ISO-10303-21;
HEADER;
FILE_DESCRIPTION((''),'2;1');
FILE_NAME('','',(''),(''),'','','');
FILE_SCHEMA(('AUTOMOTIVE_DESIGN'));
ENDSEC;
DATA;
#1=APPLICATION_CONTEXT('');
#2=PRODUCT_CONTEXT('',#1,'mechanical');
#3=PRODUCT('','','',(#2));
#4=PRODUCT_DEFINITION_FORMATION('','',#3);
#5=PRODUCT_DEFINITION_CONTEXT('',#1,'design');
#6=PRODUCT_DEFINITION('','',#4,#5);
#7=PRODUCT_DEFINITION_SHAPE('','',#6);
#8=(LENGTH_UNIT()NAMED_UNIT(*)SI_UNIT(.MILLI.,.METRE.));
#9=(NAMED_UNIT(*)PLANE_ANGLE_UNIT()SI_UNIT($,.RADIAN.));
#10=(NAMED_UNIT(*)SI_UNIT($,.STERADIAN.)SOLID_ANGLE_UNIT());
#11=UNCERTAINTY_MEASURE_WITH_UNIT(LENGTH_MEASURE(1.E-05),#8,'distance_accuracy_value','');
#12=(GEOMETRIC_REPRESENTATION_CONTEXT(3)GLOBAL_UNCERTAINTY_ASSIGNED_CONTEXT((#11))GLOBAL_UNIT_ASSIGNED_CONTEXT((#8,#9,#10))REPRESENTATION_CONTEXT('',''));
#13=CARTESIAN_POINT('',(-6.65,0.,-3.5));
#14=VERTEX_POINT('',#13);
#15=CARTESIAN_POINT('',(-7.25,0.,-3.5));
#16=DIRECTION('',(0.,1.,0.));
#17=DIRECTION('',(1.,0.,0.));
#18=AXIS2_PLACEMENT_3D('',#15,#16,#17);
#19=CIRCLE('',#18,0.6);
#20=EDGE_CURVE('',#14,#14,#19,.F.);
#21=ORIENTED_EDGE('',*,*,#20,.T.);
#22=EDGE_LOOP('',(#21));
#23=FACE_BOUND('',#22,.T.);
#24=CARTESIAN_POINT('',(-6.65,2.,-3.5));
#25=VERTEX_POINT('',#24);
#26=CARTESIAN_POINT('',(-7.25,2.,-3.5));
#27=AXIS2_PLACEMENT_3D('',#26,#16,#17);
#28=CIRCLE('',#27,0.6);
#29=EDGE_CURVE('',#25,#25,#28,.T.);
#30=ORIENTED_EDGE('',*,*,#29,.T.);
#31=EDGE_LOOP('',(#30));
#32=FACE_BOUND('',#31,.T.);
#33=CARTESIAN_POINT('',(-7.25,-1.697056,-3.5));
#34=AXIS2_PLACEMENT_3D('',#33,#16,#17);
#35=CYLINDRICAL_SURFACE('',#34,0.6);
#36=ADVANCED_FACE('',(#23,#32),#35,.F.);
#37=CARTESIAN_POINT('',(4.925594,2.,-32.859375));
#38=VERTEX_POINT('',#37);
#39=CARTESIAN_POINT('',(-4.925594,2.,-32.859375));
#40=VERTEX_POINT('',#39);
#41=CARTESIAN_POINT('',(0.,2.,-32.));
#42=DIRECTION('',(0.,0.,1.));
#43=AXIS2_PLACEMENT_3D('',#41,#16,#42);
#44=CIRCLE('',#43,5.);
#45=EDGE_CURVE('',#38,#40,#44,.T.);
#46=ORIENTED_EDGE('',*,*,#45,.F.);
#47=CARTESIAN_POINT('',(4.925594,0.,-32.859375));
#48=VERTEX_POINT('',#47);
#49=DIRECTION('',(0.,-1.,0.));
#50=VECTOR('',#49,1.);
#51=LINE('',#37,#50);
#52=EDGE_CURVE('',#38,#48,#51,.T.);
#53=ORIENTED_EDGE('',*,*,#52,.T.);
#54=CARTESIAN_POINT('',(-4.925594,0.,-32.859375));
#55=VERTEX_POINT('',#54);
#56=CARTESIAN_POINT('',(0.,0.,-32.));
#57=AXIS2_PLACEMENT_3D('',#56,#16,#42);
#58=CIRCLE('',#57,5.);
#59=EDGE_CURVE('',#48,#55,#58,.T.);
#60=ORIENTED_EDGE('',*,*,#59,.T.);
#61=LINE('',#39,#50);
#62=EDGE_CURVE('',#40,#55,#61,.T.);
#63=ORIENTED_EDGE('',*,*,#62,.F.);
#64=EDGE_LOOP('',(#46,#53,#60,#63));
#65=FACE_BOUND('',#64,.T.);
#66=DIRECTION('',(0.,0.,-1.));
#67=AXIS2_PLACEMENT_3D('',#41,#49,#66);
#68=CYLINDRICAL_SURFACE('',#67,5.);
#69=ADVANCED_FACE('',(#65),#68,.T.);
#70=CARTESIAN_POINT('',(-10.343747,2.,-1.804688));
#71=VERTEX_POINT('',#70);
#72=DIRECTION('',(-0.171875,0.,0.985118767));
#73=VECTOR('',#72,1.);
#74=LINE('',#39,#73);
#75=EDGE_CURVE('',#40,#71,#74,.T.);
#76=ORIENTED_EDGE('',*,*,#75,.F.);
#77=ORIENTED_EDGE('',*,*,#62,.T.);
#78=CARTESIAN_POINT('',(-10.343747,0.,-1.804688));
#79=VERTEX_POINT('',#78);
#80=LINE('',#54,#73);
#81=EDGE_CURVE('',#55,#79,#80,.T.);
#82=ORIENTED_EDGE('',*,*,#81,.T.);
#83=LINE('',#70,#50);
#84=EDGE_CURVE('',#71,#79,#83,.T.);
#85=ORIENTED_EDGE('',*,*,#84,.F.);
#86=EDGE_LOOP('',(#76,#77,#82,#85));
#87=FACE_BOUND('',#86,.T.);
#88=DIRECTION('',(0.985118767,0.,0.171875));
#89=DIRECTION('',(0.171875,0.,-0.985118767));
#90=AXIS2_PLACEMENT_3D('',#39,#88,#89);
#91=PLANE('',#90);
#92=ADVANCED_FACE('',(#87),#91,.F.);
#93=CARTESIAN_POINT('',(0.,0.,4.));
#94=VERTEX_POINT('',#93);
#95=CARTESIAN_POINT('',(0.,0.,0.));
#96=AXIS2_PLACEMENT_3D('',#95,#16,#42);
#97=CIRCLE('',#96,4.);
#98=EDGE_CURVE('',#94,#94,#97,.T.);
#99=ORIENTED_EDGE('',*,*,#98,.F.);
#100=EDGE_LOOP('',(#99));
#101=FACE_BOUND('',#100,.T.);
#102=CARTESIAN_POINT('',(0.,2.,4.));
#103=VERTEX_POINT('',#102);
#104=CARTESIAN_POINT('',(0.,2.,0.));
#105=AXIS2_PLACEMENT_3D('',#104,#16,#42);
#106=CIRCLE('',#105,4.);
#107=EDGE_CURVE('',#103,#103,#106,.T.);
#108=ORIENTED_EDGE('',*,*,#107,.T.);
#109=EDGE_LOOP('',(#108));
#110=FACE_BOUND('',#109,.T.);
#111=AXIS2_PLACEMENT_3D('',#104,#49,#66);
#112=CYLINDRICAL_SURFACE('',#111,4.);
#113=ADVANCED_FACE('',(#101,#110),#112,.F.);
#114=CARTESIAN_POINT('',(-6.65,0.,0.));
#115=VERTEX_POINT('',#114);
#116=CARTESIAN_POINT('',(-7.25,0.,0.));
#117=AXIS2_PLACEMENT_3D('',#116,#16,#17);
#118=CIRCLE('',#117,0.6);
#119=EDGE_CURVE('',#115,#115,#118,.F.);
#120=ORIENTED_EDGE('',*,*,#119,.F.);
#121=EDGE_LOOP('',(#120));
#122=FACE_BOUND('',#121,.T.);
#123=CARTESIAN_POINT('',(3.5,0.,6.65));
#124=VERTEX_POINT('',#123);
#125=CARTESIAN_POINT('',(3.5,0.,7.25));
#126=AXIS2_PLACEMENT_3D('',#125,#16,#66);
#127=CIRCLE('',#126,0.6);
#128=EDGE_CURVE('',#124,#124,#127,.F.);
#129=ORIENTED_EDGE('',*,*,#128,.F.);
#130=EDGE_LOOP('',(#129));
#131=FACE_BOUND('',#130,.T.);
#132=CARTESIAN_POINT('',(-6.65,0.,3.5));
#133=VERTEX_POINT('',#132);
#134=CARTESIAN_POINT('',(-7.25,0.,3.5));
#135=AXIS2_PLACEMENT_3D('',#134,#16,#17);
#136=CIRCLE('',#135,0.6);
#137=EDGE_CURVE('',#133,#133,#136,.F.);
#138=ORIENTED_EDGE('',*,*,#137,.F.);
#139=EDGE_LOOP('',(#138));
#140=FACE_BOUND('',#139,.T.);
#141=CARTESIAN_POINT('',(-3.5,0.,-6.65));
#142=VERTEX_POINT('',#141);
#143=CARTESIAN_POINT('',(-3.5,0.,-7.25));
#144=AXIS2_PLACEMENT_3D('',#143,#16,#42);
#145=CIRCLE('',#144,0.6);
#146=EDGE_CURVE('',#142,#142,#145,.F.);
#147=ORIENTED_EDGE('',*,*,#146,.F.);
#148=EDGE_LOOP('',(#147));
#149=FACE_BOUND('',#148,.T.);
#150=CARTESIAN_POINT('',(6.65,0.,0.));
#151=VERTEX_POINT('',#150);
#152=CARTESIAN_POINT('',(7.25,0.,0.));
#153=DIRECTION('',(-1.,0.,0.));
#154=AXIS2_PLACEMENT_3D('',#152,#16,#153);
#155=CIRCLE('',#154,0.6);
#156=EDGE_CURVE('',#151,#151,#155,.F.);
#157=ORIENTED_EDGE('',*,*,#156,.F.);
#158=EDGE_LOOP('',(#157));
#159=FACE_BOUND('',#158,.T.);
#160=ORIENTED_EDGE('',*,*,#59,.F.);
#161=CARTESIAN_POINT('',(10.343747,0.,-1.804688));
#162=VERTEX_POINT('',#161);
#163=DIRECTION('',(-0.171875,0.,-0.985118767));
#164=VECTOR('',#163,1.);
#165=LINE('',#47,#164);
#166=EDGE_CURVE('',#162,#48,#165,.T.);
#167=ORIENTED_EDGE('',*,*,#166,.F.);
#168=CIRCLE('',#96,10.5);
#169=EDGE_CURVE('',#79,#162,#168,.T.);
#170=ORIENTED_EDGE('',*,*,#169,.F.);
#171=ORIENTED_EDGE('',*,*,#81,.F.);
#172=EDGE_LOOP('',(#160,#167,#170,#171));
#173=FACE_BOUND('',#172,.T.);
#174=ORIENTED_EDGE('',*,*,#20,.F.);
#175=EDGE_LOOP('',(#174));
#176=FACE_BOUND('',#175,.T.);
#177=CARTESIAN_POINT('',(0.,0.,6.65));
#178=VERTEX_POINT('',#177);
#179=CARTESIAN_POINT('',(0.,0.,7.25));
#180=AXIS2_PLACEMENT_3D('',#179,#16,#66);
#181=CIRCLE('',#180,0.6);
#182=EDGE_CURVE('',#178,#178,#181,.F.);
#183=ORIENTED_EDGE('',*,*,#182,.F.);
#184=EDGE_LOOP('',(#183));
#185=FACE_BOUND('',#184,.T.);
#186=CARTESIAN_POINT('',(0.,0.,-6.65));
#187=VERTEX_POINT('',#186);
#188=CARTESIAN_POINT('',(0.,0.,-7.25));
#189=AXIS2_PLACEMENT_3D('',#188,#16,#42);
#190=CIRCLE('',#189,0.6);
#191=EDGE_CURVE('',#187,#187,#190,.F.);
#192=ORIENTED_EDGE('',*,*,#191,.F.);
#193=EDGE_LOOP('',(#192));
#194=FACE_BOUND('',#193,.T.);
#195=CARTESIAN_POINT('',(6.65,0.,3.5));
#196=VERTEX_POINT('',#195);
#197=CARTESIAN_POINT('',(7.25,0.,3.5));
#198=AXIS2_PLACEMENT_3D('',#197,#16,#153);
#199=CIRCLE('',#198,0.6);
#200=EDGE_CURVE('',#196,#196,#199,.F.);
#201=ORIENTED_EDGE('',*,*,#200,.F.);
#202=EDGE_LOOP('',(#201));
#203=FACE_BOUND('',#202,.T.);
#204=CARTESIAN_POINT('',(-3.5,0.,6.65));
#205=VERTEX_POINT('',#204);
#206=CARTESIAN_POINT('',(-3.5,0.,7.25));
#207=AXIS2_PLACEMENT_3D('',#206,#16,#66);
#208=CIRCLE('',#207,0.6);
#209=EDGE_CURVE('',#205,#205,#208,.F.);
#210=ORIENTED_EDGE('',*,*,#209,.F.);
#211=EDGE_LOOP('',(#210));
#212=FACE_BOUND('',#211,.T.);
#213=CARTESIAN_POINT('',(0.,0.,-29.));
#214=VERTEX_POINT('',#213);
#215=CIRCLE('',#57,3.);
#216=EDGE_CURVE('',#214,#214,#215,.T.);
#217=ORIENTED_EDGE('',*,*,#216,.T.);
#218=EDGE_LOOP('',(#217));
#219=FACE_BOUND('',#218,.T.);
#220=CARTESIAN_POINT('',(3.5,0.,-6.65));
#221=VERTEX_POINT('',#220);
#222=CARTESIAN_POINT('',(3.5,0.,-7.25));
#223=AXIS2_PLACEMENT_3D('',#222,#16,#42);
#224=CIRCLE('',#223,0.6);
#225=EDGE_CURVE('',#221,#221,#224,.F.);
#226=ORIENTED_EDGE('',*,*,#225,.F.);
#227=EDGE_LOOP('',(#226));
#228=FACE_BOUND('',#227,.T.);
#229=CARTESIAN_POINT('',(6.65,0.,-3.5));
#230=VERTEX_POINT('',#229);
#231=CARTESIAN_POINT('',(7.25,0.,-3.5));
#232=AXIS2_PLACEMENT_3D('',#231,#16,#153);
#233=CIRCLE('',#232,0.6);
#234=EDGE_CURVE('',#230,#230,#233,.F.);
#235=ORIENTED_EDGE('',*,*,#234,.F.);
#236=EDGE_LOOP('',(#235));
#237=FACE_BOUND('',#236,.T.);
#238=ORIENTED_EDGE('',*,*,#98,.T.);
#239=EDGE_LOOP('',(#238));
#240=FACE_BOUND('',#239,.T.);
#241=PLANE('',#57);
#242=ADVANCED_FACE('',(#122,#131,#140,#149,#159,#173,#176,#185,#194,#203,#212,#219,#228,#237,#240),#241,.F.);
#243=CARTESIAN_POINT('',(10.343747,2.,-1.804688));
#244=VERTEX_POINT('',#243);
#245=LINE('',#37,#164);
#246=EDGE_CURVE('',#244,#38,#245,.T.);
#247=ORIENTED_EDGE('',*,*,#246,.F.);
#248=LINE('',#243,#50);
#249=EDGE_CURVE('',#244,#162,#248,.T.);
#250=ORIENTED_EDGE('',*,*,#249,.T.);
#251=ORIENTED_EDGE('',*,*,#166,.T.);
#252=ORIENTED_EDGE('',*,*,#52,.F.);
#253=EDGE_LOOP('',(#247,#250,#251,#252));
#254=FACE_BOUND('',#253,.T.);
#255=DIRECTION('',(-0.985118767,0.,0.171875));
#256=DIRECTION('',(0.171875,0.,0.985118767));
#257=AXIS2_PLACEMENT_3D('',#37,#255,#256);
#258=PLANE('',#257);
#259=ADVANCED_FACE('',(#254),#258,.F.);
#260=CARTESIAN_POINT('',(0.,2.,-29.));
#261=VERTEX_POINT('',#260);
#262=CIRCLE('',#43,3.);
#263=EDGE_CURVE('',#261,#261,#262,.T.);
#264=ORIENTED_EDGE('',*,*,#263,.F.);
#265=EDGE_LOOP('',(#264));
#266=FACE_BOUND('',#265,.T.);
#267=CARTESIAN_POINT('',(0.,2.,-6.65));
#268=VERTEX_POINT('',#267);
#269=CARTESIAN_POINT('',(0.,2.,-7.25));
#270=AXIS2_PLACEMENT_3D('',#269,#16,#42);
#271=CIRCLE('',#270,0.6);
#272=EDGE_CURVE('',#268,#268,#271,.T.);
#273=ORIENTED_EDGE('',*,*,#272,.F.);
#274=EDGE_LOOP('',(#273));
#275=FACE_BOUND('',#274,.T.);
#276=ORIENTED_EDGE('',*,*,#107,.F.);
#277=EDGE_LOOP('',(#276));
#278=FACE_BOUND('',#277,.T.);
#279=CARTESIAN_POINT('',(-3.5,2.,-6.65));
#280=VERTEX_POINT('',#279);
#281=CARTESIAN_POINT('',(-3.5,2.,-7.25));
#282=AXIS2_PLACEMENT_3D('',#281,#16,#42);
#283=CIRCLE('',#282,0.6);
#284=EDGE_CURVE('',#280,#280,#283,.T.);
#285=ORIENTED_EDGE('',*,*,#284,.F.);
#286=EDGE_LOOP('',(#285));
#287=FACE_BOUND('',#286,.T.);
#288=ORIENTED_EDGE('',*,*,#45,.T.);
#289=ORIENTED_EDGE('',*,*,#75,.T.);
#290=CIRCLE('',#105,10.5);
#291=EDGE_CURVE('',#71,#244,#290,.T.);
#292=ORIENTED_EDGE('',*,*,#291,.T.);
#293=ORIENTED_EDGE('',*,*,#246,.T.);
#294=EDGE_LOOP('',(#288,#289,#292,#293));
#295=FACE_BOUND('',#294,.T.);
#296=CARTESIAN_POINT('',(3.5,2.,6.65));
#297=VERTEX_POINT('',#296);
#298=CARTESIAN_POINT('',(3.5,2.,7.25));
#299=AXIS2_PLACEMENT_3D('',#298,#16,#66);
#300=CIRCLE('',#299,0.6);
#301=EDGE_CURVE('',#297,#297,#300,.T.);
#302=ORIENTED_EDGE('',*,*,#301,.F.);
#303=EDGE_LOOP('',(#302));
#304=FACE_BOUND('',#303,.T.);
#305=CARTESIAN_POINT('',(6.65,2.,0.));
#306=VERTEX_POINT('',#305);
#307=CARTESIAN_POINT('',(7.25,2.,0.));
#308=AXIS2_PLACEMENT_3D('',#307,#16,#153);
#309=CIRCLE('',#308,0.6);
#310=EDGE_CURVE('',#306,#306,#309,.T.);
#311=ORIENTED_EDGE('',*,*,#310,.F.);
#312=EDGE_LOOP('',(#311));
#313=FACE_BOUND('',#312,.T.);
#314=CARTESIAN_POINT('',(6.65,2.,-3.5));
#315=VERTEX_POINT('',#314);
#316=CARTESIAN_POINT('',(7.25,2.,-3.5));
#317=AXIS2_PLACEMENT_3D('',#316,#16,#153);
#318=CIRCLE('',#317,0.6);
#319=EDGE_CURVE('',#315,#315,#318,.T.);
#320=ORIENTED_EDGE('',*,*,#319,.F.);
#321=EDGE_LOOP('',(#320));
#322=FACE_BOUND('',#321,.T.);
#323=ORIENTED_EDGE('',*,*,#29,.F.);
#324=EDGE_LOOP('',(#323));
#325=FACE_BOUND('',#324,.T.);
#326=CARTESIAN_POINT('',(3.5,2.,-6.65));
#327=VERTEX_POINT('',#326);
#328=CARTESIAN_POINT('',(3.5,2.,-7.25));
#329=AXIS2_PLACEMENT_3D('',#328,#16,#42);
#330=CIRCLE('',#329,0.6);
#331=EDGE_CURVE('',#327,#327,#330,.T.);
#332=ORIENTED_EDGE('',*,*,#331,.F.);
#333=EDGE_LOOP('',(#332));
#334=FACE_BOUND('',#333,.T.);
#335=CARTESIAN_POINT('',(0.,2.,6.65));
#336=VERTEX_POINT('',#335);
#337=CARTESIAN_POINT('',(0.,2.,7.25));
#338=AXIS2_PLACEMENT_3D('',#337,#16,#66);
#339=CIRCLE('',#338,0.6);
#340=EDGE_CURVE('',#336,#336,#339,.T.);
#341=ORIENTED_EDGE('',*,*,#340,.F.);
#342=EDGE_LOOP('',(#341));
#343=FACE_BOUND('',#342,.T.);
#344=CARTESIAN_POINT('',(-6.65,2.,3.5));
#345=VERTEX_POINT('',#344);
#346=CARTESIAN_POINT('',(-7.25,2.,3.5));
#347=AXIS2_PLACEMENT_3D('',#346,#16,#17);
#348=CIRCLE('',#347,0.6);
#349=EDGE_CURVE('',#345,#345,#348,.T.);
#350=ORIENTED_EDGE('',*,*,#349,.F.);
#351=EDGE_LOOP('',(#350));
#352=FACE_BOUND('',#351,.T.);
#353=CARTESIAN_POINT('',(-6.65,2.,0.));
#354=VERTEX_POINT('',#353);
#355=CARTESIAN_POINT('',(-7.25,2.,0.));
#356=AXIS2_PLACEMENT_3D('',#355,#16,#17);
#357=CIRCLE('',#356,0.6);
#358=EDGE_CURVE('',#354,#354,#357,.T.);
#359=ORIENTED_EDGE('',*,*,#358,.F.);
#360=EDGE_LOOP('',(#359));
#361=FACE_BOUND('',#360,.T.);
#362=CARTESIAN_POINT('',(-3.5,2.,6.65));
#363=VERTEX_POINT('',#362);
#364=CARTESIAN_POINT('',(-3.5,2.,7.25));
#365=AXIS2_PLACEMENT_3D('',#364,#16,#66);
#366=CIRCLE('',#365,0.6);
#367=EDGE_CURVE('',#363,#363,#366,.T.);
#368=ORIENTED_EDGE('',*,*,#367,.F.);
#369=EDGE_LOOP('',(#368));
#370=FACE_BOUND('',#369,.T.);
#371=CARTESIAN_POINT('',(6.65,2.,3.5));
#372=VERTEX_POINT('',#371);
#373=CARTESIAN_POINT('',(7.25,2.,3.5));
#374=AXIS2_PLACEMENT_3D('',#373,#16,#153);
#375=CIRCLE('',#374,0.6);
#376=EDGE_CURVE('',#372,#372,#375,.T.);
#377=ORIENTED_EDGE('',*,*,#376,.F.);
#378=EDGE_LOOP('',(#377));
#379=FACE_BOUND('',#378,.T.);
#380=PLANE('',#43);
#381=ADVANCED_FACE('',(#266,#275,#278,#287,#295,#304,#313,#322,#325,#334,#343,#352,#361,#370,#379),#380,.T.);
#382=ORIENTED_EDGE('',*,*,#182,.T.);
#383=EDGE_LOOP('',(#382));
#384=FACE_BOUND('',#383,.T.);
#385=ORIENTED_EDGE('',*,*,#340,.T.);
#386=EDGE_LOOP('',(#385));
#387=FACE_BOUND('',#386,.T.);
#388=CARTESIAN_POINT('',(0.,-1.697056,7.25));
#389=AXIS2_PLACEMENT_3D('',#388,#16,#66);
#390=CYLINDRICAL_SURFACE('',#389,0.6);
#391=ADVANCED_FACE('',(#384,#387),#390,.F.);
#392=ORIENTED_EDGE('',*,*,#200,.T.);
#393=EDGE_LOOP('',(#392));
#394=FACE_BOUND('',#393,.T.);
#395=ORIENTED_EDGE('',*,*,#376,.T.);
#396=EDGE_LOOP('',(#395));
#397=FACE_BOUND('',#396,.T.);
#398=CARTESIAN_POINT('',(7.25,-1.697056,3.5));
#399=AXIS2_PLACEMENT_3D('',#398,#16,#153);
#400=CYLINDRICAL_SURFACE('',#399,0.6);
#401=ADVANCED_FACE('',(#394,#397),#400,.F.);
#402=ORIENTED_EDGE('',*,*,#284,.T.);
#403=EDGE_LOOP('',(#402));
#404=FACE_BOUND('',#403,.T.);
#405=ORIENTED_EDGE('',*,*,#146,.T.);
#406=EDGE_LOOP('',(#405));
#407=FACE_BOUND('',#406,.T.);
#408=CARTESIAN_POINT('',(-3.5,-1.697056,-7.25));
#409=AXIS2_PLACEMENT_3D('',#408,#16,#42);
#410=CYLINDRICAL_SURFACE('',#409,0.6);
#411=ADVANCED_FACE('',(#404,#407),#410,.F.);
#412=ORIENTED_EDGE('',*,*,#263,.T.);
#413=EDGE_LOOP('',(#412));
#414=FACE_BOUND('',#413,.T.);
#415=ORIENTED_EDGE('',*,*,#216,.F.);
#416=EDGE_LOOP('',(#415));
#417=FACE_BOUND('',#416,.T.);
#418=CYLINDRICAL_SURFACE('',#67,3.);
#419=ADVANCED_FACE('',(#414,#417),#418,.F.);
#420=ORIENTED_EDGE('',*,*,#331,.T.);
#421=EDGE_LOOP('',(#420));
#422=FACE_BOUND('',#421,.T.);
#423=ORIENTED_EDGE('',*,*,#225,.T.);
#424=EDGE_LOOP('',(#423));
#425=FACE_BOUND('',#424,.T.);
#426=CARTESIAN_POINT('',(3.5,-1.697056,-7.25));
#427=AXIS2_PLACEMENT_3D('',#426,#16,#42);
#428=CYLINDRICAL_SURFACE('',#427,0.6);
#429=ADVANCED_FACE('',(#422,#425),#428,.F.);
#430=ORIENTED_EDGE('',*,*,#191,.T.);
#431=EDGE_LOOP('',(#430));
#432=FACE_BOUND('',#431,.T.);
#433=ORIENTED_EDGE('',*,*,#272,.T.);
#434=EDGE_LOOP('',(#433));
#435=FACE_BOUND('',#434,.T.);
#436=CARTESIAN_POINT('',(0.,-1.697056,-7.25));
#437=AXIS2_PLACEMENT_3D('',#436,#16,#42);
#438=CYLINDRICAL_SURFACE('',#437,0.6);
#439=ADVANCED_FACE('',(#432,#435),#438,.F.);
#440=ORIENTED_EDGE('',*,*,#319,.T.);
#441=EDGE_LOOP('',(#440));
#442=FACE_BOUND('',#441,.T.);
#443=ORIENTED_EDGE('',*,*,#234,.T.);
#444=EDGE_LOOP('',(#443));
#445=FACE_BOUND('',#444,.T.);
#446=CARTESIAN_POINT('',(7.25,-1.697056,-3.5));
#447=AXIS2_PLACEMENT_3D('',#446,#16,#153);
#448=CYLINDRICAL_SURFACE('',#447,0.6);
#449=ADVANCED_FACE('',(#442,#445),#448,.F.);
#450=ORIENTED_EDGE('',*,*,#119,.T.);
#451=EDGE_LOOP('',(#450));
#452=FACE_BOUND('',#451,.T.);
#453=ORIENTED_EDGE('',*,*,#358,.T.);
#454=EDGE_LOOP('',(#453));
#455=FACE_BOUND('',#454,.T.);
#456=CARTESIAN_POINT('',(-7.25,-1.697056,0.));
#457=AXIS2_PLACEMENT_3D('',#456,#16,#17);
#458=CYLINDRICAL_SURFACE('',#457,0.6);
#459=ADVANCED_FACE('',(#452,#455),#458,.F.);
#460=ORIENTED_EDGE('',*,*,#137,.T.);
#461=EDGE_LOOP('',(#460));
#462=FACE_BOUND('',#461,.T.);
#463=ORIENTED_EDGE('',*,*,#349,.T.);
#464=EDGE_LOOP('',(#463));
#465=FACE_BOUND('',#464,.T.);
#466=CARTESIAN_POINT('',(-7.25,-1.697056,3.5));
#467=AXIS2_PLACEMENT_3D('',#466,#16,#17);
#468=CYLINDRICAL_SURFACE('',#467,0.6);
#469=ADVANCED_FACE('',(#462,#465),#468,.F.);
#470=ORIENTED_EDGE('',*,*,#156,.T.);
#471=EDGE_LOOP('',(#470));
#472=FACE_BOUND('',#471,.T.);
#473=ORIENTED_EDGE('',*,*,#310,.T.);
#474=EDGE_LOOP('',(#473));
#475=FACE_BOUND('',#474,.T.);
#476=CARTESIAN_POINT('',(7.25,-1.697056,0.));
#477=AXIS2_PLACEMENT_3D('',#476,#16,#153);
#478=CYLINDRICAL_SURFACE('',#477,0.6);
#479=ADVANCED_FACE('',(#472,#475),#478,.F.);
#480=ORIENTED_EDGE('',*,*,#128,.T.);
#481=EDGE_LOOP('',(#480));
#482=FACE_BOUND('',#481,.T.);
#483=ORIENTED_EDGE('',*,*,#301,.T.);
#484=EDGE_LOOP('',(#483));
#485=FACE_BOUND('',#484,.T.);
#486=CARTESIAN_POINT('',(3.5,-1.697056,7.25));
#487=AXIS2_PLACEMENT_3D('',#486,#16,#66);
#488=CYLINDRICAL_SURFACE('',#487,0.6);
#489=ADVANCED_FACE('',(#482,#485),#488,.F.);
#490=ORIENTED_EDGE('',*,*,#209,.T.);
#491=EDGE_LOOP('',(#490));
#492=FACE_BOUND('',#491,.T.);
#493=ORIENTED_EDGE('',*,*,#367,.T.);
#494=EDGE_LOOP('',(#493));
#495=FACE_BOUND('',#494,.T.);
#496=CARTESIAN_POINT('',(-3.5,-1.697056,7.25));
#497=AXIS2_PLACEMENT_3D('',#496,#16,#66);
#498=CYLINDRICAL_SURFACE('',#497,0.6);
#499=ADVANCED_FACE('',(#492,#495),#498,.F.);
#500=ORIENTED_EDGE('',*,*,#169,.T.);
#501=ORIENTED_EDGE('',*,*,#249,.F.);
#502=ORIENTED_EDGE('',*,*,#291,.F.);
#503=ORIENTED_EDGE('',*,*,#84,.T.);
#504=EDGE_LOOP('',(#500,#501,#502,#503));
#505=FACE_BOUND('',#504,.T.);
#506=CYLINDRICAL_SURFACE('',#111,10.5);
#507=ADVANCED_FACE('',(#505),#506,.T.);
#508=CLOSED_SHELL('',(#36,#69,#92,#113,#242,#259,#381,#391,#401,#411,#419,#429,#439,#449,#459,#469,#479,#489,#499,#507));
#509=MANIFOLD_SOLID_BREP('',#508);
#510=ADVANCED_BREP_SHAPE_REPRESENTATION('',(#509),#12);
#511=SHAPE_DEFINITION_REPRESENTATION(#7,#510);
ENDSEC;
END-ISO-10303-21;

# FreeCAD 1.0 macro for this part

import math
import FreeCAD as App
import Part
import Sketcher

doc = App.newDocument("Part")
body = doc.addObject("PartDesign::Body", "Body")

sketch1 = doc.addObject("Sketcher::SketchObject", "Sketch")
body.addObject(sketch1)
sketch1.AttachmentSupport = (doc.XZ_Plane, [""])
sketch1.MapMode = "FlatFace"
sketch1.addGeometry([
    Part.LineSegment(App.Vector(10.3, -1.8, 0), App.Vector(4.9, -32.9, 0)),
    Part.ArcOfCircle(Part.Circle(App.Vector(0, -32, 0), App.Vector(0, 0, 1), 5), math.radians(-170), math.radians(-10)),
    Part.LineSegment(App.Vector(-4.9, -32.9, 0), App.Vector(-10.3, -1.8, 0)),
    Part.ArcOfCircle(Part.Circle(App.Vector(0, 0, 0), App.Vector(0, 0, 1), 10.5), math.radians(-10), math.radians(190)),
    Part.Circle(App.Vector(0, 0, 0), App.Vector(0, 0, 1), 4),
    Part.Circle(App.Vector(0, -32, 0), App.Vector(0, 0, 1), 3),
], False)
sketch1.addConstraint([
    Sketcher.Constraint("Tangent", 0, 2, 1, 2),
    Sketcher.Constraint("Tangent", 1, 1, 2, 1),
    Sketcher.Constraint("Tangent", 2, 2, 3, 2),
    Sketcher.Constraint("Tangent", 3, 1, 0, 1),
    Sketcher.Constraint("Coincident", 3, 3, -1, 1),
    Sketcher.Constraint("Coincident", 4, 3, -1, 1),
    Sketcher.Constraint("Coincident", 5, 3, 1, 3),
    Sketcher.Constraint("PointOnObject", 1, 3, -2),
    Sketcher.Constraint("Diameter", 4, 8.0),
    Sketcher.Constraint("Diameter", 5, 6.0),
    Sketcher.Constraint("Radius", 1, 5.0),
    Sketcher.Constraint("Radius", 3, 10.5),
    Sketcher.Constraint("DistanceY", 1, 3, -1, 1, 32.0),
])
pad1 = doc.addObject("PartDesign::Pad", "Pad")
body.addObject(pad1)
pad1.Profile = sketch1
pad1.Length = 2
pad1.Reversed = True

sketch2 = doc.addObject("Sketcher::SketchObject", "Sketch001")
body.addObject(sketch2)
sketch2.AttachmentSupport = (doc.XZ_Plane, [""])
sketch2.MapMode = "FlatFace"
sketch2.AttachmentOffset = App.Placement(App.Vector(0, 0, -2), App.Rotation())
sketch2.addGeometry([
    Part.Circle(App.Vector(0, -7.2, 0), App.Vector(0, 0, 1), 0.6),
    Part.Circle(App.Vector(-3.5, -7.2, 0), App.Vector(0, 0, 1), 0.6),
    Part.Circle(App.Vector(3.5, -7.2, 0), App.Vector(0, 0, 1), 0.6),
], False)
sketch2.addConstraint([
    Sketcher.Constraint("Equal", 0, 1),
    Sketcher.Constraint("Equal", 1, 2),
    Sketcher.Constraint("Symmetric", 1, 3, 2, 3, -2),
    Sketcher.Constraint("PointOnObject", 0, 3, -2),
    Sketcher.Constraint("Horizontal", 0, 3, 1, 3),
    Sketcher.Constraint("Diameter", 0, 1.2),
    Sketcher.Constraint("DistanceX", 1, 3, 2, 3, 7.0),
    Sketcher.Constraint("DistanceY", 0, 3, -1, 1, 7.25),
])
pocket1 = doc.addObject("PartDesign::Pocket", "Pocket")
body.addObject(pocket1)
pocket1.Profile = sketch2
pocket1.Length = 2
pocket1.Reversed = True
doc.recompute()

polarpattern = doc.addObject("PartDesign::PolarPattern", "PolarPattern")
body.addObject(polarpattern)
polarpattern.Originals = [pocket1]
polarpattern.Axis = (doc.Y_Axis, [""])
polarpattern.Angle = 360
polarpattern.Occurrences = 4
body.Tip = polarpattern

doc.recompute()
